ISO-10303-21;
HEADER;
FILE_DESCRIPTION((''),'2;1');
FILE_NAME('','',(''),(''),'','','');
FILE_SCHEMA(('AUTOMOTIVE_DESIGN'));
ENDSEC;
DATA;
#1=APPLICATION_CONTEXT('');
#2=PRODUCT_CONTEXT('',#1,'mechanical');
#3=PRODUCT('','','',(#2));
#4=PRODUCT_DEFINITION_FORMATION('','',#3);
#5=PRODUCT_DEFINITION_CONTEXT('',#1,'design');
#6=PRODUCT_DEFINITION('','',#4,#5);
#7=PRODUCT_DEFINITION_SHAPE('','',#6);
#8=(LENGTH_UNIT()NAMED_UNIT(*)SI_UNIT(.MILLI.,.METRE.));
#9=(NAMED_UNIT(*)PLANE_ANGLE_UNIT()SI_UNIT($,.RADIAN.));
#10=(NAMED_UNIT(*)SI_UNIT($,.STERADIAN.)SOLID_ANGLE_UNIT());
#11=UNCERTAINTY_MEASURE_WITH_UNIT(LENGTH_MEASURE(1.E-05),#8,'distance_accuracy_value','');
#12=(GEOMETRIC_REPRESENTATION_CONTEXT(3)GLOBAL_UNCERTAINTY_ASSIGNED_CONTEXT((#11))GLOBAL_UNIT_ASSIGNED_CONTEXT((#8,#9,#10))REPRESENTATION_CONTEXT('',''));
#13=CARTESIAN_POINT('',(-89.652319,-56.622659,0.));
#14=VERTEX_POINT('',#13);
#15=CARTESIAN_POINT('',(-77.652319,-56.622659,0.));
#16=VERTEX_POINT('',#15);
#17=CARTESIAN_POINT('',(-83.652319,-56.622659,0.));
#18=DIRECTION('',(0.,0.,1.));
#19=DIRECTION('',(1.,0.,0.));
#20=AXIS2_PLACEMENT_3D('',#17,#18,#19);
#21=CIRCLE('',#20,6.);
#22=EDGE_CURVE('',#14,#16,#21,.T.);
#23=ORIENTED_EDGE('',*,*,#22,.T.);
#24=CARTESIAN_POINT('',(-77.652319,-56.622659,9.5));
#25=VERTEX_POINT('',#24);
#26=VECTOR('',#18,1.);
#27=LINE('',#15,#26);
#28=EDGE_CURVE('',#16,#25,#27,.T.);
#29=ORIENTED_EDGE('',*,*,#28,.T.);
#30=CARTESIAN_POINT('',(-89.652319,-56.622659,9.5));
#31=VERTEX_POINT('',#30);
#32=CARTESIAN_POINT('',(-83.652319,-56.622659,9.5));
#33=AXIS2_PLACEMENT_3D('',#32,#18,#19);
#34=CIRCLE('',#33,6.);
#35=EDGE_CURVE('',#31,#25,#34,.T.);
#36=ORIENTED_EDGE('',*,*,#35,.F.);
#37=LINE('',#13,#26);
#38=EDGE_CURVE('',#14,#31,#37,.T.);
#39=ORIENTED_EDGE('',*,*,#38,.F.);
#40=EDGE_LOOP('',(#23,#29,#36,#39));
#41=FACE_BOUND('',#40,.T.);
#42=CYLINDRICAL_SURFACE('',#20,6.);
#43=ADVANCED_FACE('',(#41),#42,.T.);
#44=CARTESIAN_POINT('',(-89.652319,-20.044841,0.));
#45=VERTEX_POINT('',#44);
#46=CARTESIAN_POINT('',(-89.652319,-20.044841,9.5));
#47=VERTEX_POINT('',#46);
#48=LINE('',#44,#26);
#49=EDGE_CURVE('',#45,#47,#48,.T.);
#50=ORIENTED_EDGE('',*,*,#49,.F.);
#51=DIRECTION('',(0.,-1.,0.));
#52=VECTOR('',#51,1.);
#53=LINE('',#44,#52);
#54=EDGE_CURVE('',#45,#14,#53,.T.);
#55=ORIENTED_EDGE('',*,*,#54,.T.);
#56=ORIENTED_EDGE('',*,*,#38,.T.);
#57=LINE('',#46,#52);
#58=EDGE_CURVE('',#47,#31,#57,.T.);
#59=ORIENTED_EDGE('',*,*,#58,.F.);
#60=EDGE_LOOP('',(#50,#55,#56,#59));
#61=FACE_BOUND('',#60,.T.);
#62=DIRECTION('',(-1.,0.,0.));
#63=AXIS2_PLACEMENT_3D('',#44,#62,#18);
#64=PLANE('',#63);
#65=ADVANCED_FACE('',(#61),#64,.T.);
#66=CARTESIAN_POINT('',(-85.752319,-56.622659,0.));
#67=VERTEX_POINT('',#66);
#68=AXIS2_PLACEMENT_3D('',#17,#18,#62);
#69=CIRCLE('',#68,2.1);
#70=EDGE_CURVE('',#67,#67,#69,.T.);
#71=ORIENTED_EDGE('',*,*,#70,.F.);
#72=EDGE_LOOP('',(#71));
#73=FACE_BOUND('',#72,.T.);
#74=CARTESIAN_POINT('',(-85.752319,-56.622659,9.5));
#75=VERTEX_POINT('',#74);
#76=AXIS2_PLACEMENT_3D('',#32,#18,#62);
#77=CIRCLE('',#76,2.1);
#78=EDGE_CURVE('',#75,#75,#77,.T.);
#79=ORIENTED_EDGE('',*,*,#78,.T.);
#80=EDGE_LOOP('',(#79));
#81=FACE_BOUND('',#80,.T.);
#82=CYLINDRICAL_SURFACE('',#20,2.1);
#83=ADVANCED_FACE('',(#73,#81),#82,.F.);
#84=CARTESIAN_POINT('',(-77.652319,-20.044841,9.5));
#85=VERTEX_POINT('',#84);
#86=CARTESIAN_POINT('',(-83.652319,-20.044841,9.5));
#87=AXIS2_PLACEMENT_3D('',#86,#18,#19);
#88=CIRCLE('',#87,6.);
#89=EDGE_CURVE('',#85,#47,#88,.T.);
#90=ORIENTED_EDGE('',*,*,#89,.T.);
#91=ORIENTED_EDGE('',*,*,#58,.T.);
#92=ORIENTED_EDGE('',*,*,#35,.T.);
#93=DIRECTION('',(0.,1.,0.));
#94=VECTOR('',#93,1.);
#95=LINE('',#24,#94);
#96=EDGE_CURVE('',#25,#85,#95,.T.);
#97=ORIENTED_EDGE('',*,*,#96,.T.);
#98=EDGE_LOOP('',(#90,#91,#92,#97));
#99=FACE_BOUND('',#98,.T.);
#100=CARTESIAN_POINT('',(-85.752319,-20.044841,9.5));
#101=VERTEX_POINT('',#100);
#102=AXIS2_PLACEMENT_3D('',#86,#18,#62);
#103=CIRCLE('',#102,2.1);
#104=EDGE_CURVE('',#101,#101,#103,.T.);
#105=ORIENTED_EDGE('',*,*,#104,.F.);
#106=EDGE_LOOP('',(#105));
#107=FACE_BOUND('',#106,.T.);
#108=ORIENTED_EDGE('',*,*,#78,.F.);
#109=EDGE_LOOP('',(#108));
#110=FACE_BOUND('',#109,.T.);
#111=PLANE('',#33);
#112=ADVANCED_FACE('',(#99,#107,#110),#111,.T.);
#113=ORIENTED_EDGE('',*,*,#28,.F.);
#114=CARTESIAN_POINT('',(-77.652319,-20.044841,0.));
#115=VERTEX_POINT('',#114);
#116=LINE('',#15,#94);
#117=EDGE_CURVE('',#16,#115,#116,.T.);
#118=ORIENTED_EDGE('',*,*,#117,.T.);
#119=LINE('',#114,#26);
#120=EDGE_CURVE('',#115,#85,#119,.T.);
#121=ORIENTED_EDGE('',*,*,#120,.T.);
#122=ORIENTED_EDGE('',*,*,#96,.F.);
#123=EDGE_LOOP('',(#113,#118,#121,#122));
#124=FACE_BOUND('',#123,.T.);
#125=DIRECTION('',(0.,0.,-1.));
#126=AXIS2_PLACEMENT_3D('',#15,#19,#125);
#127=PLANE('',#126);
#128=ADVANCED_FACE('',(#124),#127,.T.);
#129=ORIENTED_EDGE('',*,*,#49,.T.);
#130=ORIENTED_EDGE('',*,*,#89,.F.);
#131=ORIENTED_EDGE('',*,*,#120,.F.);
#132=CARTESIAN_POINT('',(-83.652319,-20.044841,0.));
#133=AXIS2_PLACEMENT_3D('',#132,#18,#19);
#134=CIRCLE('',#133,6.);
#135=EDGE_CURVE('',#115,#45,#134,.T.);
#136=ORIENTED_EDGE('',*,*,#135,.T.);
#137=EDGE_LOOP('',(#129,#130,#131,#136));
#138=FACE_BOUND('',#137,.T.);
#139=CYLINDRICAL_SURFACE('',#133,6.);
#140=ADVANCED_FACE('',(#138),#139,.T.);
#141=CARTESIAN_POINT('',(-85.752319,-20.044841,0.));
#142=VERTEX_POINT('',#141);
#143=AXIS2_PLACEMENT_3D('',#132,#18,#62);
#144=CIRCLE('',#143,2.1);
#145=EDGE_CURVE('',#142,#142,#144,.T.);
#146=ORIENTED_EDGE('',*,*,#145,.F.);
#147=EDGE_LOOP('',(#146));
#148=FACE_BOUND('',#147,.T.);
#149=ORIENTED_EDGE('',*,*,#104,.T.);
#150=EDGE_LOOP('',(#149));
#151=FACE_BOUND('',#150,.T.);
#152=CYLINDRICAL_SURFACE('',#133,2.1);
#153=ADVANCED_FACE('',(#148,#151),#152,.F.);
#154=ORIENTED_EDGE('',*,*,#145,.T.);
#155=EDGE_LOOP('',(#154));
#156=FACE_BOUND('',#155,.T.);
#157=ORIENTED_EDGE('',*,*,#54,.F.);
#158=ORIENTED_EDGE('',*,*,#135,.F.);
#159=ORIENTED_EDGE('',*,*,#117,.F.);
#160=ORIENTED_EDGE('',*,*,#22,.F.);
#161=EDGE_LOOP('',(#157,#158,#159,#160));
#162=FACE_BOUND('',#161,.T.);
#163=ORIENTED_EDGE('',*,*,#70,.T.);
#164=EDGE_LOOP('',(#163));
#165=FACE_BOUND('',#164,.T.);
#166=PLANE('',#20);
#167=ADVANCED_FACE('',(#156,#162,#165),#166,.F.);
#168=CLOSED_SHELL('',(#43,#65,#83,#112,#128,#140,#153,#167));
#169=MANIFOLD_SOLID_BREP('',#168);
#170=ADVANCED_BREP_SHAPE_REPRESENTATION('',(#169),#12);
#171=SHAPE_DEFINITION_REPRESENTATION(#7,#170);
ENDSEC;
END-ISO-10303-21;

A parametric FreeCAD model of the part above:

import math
import FreeCAD as App
import Part
import Sketcher

V = App.Vector
Q = App.Units.Quantity

doc = App.newDocument("Part")
body = doc.addObject("PartDesign::Body", "Body")

sketch1 = doc.addObject("Sketcher::SketchObject", "Sketch")
body.addObject(sketch1)
sketch1.AttachmentSupport = (doc.XY_Plane, [""])
sketch1.MapMode = "FlatFace"
sketch1.AttachmentOffset = App.Placement(V(0, 0, 9.5), App.Rotation())
sketch1.addGeometry(Part.LineSegment(V(-77.7, -56.6, 0), V(-77.7, -20, 0)), False)
sketch1.addGeometry(Part.ArcOfCircle(Part.Circle(V(-83.7, -20, 0), V(0, 0, 1), 6), math.radians(0), math.radians(180)), False)
sketch1.addGeometry(Part.LineSegment(V(-89.7, -20, 0), V(-89.7, -56.6, 0)), False)
sketch1.addGeometry(Part.ArcOfCircle(Part.Circle(V(-83.7, -56.6, 0), V(0, 0, 1), 6), math.radians(180), math.radians(360)), False)
sketch1.addGeometry(Part.Circle(V(-83.7, -56.6, 0), V(0, 0, 1), 2.1), False)
sketch1.addGeometry(Part.Circle(V(-83.7, -20, 0), V(0, 0, 1), 2.1), False)
sketch1.addConstraint(Sketcher.Constraint("Tangent", 0, 2, 1, 1))
sketch1.addConstraint(Sketcher.Constraint("Tangent", 1, 2, 2, 1))
sketch1.addConstraint(Sketcher.Constraint("Tangent", 2, 2, 3, 1))
sketch1.addConstraint(Sketcher.Constraint("Tangent", 3, 2, 0, 1))
sketch1.addConstraint(Sketcher.Constraint("Vertical", 0))
sketch1.addConstraint(Sketcher.Constraint("Vertical", 2))
sketch1.addConstraint(Sketcher.Constraint("Coincident", 4, 3, 3, 3))
sketch1.addConstraint(Sketcher.Constraint("Coincident", 5, 3, 1, 3))
sketch1.addConstraint(Sketcher.Constraint("Equal", 4, 5))
sketch1.addConstraint(Sketcher.Constraint("Radius", 1, Q("6 mm")))
sketch1.addConstraint(Sketcher.Constraint("Diameter", 4, Q("4.2 mm")))
sketch1.addConstraint(Sketcher.Constraint("DistanceY", 0, 1, 0, 2, Q("36.577818 mm")))
sketch1.addConstraint(Sketcher.Constraint("DistanceX", 1, 3, -1, 1, Q("83.652319 mm")))
sketch1.addConstraint(Sketcher.Constraint("DistanceY", 1, 3, -1, 1, Q("20.044841 mm")))
pad1 = doc.addObject("PartDesign::Pad", "Pad")
body.addObject(pad1)
pad1.Profile = sketch1
pad1.Length = 9.5
pad1.Reversed = True

doc.recompute()
